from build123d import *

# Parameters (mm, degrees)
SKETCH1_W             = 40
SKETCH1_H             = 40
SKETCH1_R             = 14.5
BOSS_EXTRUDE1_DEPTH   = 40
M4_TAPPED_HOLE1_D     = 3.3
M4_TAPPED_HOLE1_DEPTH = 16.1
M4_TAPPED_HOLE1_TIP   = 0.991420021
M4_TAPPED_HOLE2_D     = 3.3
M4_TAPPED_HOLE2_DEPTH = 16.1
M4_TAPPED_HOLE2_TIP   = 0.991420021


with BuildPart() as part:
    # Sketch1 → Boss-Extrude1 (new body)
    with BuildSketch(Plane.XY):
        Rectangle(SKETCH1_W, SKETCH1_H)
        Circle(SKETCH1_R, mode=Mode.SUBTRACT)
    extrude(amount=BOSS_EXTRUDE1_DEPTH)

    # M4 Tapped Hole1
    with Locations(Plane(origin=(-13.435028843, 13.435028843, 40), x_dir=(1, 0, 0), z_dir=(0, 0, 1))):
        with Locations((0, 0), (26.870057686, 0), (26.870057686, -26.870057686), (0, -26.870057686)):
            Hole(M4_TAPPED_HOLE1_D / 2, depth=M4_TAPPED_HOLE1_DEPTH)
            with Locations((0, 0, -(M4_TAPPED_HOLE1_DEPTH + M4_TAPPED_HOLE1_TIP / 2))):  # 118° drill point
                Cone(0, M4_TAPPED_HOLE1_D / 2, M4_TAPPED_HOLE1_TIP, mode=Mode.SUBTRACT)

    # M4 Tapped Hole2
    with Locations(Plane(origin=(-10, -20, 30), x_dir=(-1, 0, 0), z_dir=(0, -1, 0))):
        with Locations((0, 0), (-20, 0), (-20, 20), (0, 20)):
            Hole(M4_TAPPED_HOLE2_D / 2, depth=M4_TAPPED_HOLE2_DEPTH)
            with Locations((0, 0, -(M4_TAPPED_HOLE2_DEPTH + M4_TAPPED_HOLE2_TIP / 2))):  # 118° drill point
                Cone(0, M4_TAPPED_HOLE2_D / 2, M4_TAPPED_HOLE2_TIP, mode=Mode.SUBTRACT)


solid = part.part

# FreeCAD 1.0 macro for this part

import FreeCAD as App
import Part
import Sketcher

doc = App.newDocument("Part")
body = doc.addObject("PartDesign::Body", "Body")

# Sketch on XY plane
sketch1 = body.newObject("Sketcher::SketchObject", "Sketch")
sketch1.AttachmentSupport = (doc.getObject("XY_Plane"), [""])
sketch1.MapMode = "FlatFace"
sketch1.addGeometry(Part.LineSegment(App.Vector(-20, 20, 0), App.Vector(-20, -20, 0)), False)
sketch1.addGeometry(Part.LineSegment(App.Vector(-20, -20, 0), App.Vector(20, -20, 0)), False)
sketch1.addGeometry(Part.LineSegment(App.Vector(20, -20, 0), App.Vector(20, 20, 0)), False)
sketch1.addGeometry(Part.LineSegment(App.Vector(20, 20, 0), App.Vector(-20, 20, 0)), False)
sketch1.addGeometry(Part.Circle(App.Vector(0, 0, 0), App.Vector(0, 0, 1), 14.5), False)
sketch1.addConstraint(Sketcher.Constraint("Coincident", 0, 2, 1, 1))
sketch1.addConstraint(Sketcher.Constraint("Coincident", 1, 2, 2, 1))
sketch1.addConstraint(Sketcher.Constraint("Coincident", 2, 2, 3, 1))
sketch1.addConstraint(Sketcher.Constraint("Coincident", 3, 2, 0, 1))
sketch1.addConstraint(Sketcher.Constraint("Vertical", 0))
sketch1.addConstraint(Sketcher.Constraint("Horizontal", 1))
sketch1.addConstraint(Sketcher.Constraint("Vertical", 2))
sketch1.addConstraint(Sketcher.Constraint("Horizontal", 3))
sketch1.addConstraint(Sketcher.Constraint("Coincident", 4, 3, -1, 1))
sketch1.addConstraint(Sketcher.Constraint("Symmetric", 0, 2, 2, 2, -1, 1))
sketch1.addConstraint(Sketcher.Constraint("Equal", 3, 0))
sketch1.addConstraint(Sketcher.Constraint("Diameter", 4, 29.0))
sketch1.addConstraint(Sketcher.Constraint("DistanceX", 1, 1, 1, 2, 40.0))
pad1 = body.newObject("PartDesign::Pad", "Pad")
pad1.Profile = sketch1
pad1.Length = 40

# Sketch on XY plane
sketch2 = body.newObject("Sketcher::SketchObject", "Sketch001")
sketch2.AttachmentSupport = (doc.getObject("XY_Plane"), [""])
sketch2.MapMode = "FlatFace"
sketch2.AttachmentOffset = App.Placement(App.Vector(0, 0, 40), App.Rotation())
sketch2.addGeometry(Part.Circle(App.Vector(-13.435029, 13.435029, 0), App.Vector(0, 0, 1), 1.65), False)
sketch2.addGeometry(Part.Circle(App.Vector(13.435029, 13.435029, 0), App.Vector(0, 0, 1), 1.65), False)
sketch2.addGeometry(Part.Circle(App.Vector(13.435029, -13.435029, 0), App.Vector(0, 0, 1), 1.65), False)
sketch2.addGeometry(Part.Circle(App.Vector(-13.435029, -13.435029, 0), App.Vector(0, 0, 1), 1.65), False)
sketch2.addConstraint(Sketcher.Constraint("Equal", 0, 1))
sketch2.addConstraint(Sketcher.Constraint("Equal", 1, 2))
sketch2.addConstraint(Sketcher.Constraint("Equal", 2, 3))
sketch2.addConstraint(Sketcher.Constraint("Symmetric", 0, 3, 2, 3, -1, 1))
sketch2.addConstraint(Sketcher.Constraint("Symmetric", 1, 3, 3, 3, -1, 1))
sketch2.addConstraint(Sketcher.Constraint("Symmetric", 0, 3, 1, 3, -2))
sketch2.addConstraint(Sketcher.Constraint("Diameter", 0, 3.3))
sketch2.addConstraint(Sketcher.Constraint("DistanceX", 0, 3, -1, 1, 13.435029))
sketch2.addConstraint(Sketcher.Constraint("DistanceY", -1, 1, 0, 3, 13.435029))
doc.recompute()
hole = body.newObject("PartDesign::Hole", "Hole")
hole.Profile = sketch2
hole.ThreadType = "None"
hole.Diameter = 3.3
hole.DepthType = "Dimension"
hole.Depth = 16.1
hole.DrillPoint = "Angled"
hole.DrillPointAngle = 118

# Sketch on XZ plane
sketch3 = body.newObject("Sketcher::SketchObject", "Sketch002")
sketch3.AttachmentSupport = (doc.getObject("XZ_Plane"), [""])
sketch3.MapMode = "FlatFace"
sketch3.AttachmentOffset = App.Placement(App.Vector(0, 0, 20), App.Rotation())
sketch3.addGeometry(Part.Circle(App.Vector(-10, 30, 0), App.Vector(0, 0, 1), 1.65), False)
sketch3.addGeometry(Part.Circle(App.Vector(10, 30, 0), App.Vector(0, 0, 1), 1.65), False)
sketch3.addGeometry(Part.Circle(App.Vector(10, 10, 0), App.Vector(0, 0, 1), 1.65), False)
sketch3.addGeometry(Part.Circle(App.Vector(-10, 10, 0), App.Vector(0, 0, 1), 1.65), False)
sketch3.addConstraint(Sketcher.Constraint("Equal", 0, 1))
sketch3.addConstraint(Sketcher.Constraint("Equal", 1, 2))
sketch3.addConstraint(Sketcher.Constraint("Equal", 2, 3))
sketch3.addConstraint(Sketcher.Constraint("Symmetric", 0, 3, 1, 3, -2))
sketch3.addConstraint(Sketcher.Constraint("Symmetric", 2, 3, 3, 3, -2))
sketch3.addConstraint(Sketcher.Constraint("Vertical", 1, 3, 2, 3))
sketch3.addConstraint(Sketcher.Constraint("Diameter", 0, 3.3))
sketch3.addConstraint(Sketcher.Constraint("DistanceX", 0, 3, -1, 1, 10.0))
sketch3.addConstraint(Sketcher.Constraint("DistanceY", -1, 1, 0, 3, 30.0))
sketch3.addConstraint(Sketcher.Constraint("DistanceY", -1, 1, 2, 3, 10.0))
doc.recompute()
hole2 = body.newObject("PartDesign::Hole", "Hole001")
hole2.Profile = sketch3
hole2.ThreadType = "None"
hole2.Diameter = 3.3
hole2.DepthType = "Dimension"
hole2.Depth = 16.1
hole2.DrillPoint = "Angled"
hole2.DrillPointAngle = 118

doc.recompute()
